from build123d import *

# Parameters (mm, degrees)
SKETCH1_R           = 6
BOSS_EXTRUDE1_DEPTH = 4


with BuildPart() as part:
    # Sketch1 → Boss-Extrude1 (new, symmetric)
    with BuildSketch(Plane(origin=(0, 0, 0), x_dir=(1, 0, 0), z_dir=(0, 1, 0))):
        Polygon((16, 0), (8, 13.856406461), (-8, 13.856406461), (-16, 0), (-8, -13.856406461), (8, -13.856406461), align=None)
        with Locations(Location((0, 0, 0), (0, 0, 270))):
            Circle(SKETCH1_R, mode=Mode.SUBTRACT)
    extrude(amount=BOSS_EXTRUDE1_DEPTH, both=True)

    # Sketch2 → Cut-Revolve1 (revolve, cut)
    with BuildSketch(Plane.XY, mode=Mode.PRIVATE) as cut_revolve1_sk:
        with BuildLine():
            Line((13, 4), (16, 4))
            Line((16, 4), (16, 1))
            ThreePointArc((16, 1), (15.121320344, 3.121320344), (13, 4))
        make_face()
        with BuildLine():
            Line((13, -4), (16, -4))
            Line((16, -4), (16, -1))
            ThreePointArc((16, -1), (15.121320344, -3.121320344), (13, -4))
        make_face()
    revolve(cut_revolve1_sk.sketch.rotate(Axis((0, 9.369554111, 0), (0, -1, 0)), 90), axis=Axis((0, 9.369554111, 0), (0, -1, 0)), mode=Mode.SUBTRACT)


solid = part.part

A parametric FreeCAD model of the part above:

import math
import FreeCAD as App
import Part
import Sketcher
from FreeCAD import Vector
Q = App.Units.Quantity

doc = App.newDocument("Part")
body = doc.addObject("PartDesign::Body", "Body")

# Sketch on XZ plane
sketch1 = body.newObject("Sketcher::SketchObject", "Sketch")
sketch1.AttachmentSupport = (doc.getObject("XZ_Plane"), [""])
sketch1.MapMode = "FlatFace"
sketch1.addGeometry([
    Part.LineSegment(Vector(16, 0, 0), Vector(8, -13.856406, 0)),  # 0
    Part.LineSegment(Vector(8, -13.856406, 0), Vector(-8, -13.856406, 0)),  # 1
    Part.LineSegment(Vector(-8, -13.856406, 0), Vector(-16, 0, 0)),  # 2
    Part.LineSegment(Vector(-16, 0, 0), Vector(-8, 13.856406, 0)),  # 3
    Part.LineSegment(Vector(-8, 13.856406, 0), Vector(8, 13.856406, 0)),  # 4
    Part.LineSegment(Vector(8, 13.856406, 0), Vector(16, 0, 0)),  # 5
    Part.Circle(Vector(0, 0, 0), Vector(0, 0, 1), 6),  # 6
], False)
sketch1.addConstraint([
    Sketcher.Constraint("Coincident", 0, 2, 1, 1),
    Sketcher.Constraint("Coincident", 1, 2, 2, 1),
    Sketcher.Constraint("Coincident", 2, 2, 3, 1),
    Sketcher.Constraint("Coincident", 3, 2, 4, 1),
    Sketcher.Constraint("Coincident", 4, 2, 5, 1),
    Sketcher.Constraint("Coincident", 5, 2, 0, 1),
    Sketcher.Constraint("Horizontal", 1),
    Sketcher.Constraint("Horizontal", 4),
    Sketcher.Constraint("Coincident", 6, 3, -1, 1),
    Sketcher.Constraint("Symmetric", 0, 2, 3, 2, -1, 1),
    Sketcher.Constraint("Symmetric", 2, 2, 5, 2, -1, 1),
    Sketcher.Constraint("PointOnObject", 2, 2, -1),
    Sketcher.Constraint("Parallel", 2, 5),
    Sketcher.Constraint("Vertical", 1, 2, 3, 2),
    Sketcher.Constraint("Diameter", 6, Q("12 mm")),
    Sketcher.Constraint("DistanceX", 1, 2, 1, 1, Q("16 mm")),
    Sketcher.Constraint("Angle", 0, Q("-120 deg")),
    Sketcher.Constraint("Distance", 0, Q("16 mm")),
])
pad1 = body.newObject("PartDesign::Pad", "Pad")
pad1.Profile = sketch1
pad1.Length = 8
pad1.Midplane = True

# Sketch on XY plane
sketch2 = body.newObject("Sketcher::SketchObject", "Sketch001")
sketch2.AttachmentSupport = (doc.getObject("XY_Plane"), [""])
sketch2.MapMode = "FlatFace"
sketch2.addGeometry([
    Part.LineSegment(Vector(16, 4, 0), Vector(13, 4, 0)),  # 0
    Part.ArcOfCircle(Part.Circle(Vector(13, 1, 0), Vector(0, 0, 1), 3), math.radians(0), math.radians(90)),  # 1
    Part.LineSegment(Vector(16, 1, 0), Vector(16, 4, 0)),  # 2
    Part.LineSegment(Vector(13, -4, 0), Vector(16, -4, 0)),  # 3
    Part.LineSegment(Vector(16, -4, 0), Vector(16, -1, 0)),  # 4
    Part.ArcOfCircle(Part.Circle(Vector(13, -1, 0), Vector(0, 0, 1), 3), math.radians(-90), math.radians(0)),  # 5
], False)
sketch2.addConstraint([
    Sketcher.Constraint("Tangent", 0, 2, 1, 2),
    Sketcher.Constraint("Tangent", 1, 1, 2, 1),
    Sketcher.Constraint("Coincident", 2, 2, 0, 1),
    Sketcher.Constraint("Coincident", 3, 2, 4, 1),
    Sketcher.Constraint("Tangent", 4, 2, 5, 2),
    Sketcher.Constraint("Tangent", 5, 1, 3, 1),
    Sketcher.Constraint("Horizontal", 0),
    Sketcher.Constraint("Vertical", 2),
    Sketcher.Constraint("Horizontal", 3),
    Sketcher.Constraint("Vertical", 4),
    Sketcher.Constraint("Equal", 1, 5),
    Sketcher.Constraint("Symmetric", 1, 3, 5, 3, -1),
    Sketcher.Constraint("Radius", 1, Q("3 mm")),
    Sketcher.Constraint("DistanceX", -1, 1, 1, 3, Q("13 mm")),
    Sketcher.Constraint("DistanceY", -1, 1, 1, 3, Q("1 mm")),
])
groove = body.newObject("PartDesign::Groove", "Groove")
groove.Profile = sketch2
groove.ReferenceAxis = (sketch2, ["V_Axis"])
groove.Angle = 360

doc.recompute()
